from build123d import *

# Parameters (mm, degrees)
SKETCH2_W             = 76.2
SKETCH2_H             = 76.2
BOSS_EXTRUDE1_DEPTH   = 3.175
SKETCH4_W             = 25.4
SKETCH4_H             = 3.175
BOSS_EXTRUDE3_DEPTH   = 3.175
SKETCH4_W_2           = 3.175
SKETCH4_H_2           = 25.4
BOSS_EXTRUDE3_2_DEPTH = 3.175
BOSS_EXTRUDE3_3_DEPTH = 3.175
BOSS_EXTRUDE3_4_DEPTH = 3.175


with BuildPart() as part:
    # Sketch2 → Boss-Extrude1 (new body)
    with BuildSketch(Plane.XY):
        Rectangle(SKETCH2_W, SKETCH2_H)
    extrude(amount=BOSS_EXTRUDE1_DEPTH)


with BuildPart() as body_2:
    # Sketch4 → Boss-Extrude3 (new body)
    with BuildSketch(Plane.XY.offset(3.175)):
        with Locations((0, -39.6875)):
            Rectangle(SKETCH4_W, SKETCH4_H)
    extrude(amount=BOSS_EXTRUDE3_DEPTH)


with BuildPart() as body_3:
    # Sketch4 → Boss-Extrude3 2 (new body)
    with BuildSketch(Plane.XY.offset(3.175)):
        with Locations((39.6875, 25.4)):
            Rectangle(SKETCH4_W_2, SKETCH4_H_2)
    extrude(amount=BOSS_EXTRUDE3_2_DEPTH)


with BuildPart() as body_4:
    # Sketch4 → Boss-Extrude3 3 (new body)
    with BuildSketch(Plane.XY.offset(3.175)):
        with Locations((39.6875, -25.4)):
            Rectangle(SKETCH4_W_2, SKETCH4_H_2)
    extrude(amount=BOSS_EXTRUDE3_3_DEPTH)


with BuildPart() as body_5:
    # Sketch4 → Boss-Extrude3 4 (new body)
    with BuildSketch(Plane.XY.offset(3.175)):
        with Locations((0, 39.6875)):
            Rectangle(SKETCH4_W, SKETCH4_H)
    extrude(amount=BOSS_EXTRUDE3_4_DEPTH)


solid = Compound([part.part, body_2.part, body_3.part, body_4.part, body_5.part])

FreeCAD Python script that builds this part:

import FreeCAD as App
import Part
import Sketcher

V = App.Vector
Q = App.Units.Quantity

doc = App.newDocument("Part")
body = doc.addObject("PartDesign::Body", "Body")

# Sketch on XY plane
sketch1 = body.newObject("Sketcher::SketchObject", "Sketch")
sketch1.AttachmentSupport = (doc.getObject("XY_Plane"), [""])
sketch1.MapMode = "FlatFace"
sketch1.addGeometry([
    Part.LineSegment(V(-38, 38, 0), V(-38, -38, 0)),
    Part.LineSegment(V(-38, -38, 0), V(38, -38, 0)),
    Part.LineSegment(V(38, -38, 0), V(38, 38, 0)),
    Part.LineSegment(V(38, 38, 0), V(-38, 38, 0)),
], False)
sketch1.addConstraint([
    Sketcher.Constraint("Coincident", 0, 2, 1, 1),
    Sketcher.Constraint("Coincident", 1, 2, 2, 1),
    Sketcher.Constraint("Coincident", 2, 2, 3, 1),
    Sketcher.Constraint("Coincident", 3, 2, 0, 1),
    Sketcher.Constraint("Vertical", 0),
    Sketcher.Constraint("Horizontal", 1),
    Sketcher.Constraint("Vertical", 2),
    Sketcher.Constraint("Horizontal", 3),
    Sketcher.Constraint("Symmetric", 0, 2, 2, 2, -1, 1),
    Sketcher.Constraint("Equal", 3, 0),
    Sketcher.Constraint("DistanceX", 1, 1, 1, 2, Q("3 in")),
])
pad1 = body.newObject("PartDesign::Pad", "Pad")
pad1.Profile = sketch1
pad1.Length = Q("0.125 in")
body2 = doc.addObject("PartDesign::Body", "Body001")

# Sketch on XY plane
sketch2 = body2.newObject("Sketcher::SketchObject", "Sketch001")
sketch2.AttachmentSupport = (doc.getObject("XY_Plane001"), [""])
sketch2.MapMode = "FlatFace"
sketch2.AttachmentOffset = App.Placement(V(0, 0, 0.125 * 25.4), App.Rotation())
sketch2.addGeometry([
    Part.LineSegment(V(-12.7, -38.1, 0), V(-12.7, -41.3, 0)),
    Part.LineSegment(V(-12.7, -41.3, 0), V(12.7, -41.3, 0)),
    Part.LineSegment(V(12.7, -41.3, 0), V(12.7, -38.1, 0)),
    Part.LineSegment(V(12.7, -38.1, 0), V(-12.7, -38.1, 0)),
], False)
sketch2.addConstraint([
    Sketcher.Constraint("Coincident", 0, 2, 1, 1),
    Sketcher.Constraint("Coincident", 1, 2, 2, 1),
    Sketcher.Constraint("Coincident", 2, 2, 3, 1),
    Sketcher.Constraint("Coincident", 3, 2, 0, 1),
    Sketcher.Constraint("Vertical", 0),
    Sketcher.Constraint("Horizontal", 1),
    Sketcher.Constraint("Vertical", 2),
    Sketcher.Constraint("Horizontal", 3),
    Sketcher.Constraint("DistanceX", 1, 1, 1, 2, Q("1 in")),
    Sketcher.Constraint("DistanceX", 0, 2, -1, 1, Q("0.5 in")),
    Sketcher.Constraint("DistanceY", 2, 2, -1, 1, Q("1.5 in")),
    Sketcher.Constraint("DistanceY", 0, 2, 0, 1, Q("0.125 in")),
])
pad2 = body2.newObject("PartDesign::Pad", "Pad001")
pad2.Profile = sketch2
pad2.Length = Q("0.125 in")
body3 = doc.addObject("PartDesign::Body", "Body002")

# Sketch on XY plane
sketch3 = body3.newObject("Sketcher::SketchObject", "Sketch002")
sketch3.AttachmentSupport = (doc.getObject("XY_Plane002"), [""])
sketch3.MapMode = "FlatFace"
sketch3.AttachmentOffset = App.Placement(V(0, 0, 0.125 * 25.4), App.Rotation())
sketch3.addGeometry([
    Part.LineSegment(V(38.1, 38.1, 0), V(38.1, 12.7, 0)),
    Part.LineSegment(V(38.1, 12.7, 0), V(41.3, 12.7, 0)),
    Part.LineSegment(V(41.3, 12.7, 0), V(41.3, 38.1, 0)),
    Part.LineSegment(V(41.3, 38.1, 0), V(38.1, 38.1, 0)),
], False)
sketch3.addConstraint([
    Sketcher.Constraint("Coincident", 0, 2, 1, 1),
    Sketcher.Constraint("Coincident", 1, 2, 2, 1),
    Sketcher.Constraint("Coincident", 2, 2, 3, 1),
    Sketcher.Constraint("Coincident", 3, 2, 0, 1),
    Sketcher.Constraint("Vertical", 0),
    Sketcher.Constraint("Horizontal", 1),
    Sketcher.Constraint("Vertical", 2),
    Sketcher.Constraint("Horizontal", 3),
    Sketcher.Constraint("DistanceY", 0, 2, 0, 1, Q("1 in")),
    Sketcher.Constraint("DistanceX", -1, 1, 0, 2, Q("1.5 in")),
    Sketcher.Constraint("DistanceY", -1, 1, 0, 2, Q("0.5 in")),
    Sketcher.Constraint("DistanceX", 1, 1, 1, 2, Q("0.125 in")),
])
pad3 = body3.newObject("PartDesign::Pad", "Pad002")
pad3.Profile = sketch3
pad3.Length = Q("0.125 in")
body4 = doc.addObject("PartDesign::Body", "Body003")

# Sketch on XY plane
sketch4 = body4.newObject("Sketcher::SketchObject", "Sketch003")
sketch4.AttachmentSupport = (doc.getObject("XY_Plane003"), [""])
sketch4.MapMode = "FlatFace"
sketch4.AttachmentOffset = App.Placement(V(0, 0, 0.125 * 25.4), App.Rotation())
sketch4.addGeometry([
    Part.LineSegment(V(38.1, -12.7, 0), V(38.1, -38.1, 0)),
    Part.LineSegment(V(38.1, -38.1, 0), V(41.3, -38.1, 0)),
    Part.LineSegment(V(41.3, -38.1, 0), V(41.3, -12.7, 0)),
    Part.LineSegment(V(41.3, -12.7, 0), V(38.1, -12.7, 0)),
], False)
sketch4.addConstraint([
    Sketcher.Constraint("Coincident", 0, 2, 1, 1),
    Sketcher.Constraint("Coincident", 1, 2, 2, 1),
    Sketcher.Constraint("Coincident", 2, 2, 3, 1),
    Sketcher.Constraint("Coincident", 3, 2, 0, 1),
    Sketcher.Constraint("Vertical", 0),
    Sketcher.Constraint("Horizontal", 1),
    Sketcher.Constraint("Vertical", 2),
    Sketcher.Constraint("Horizontal", 3),
    Sketcher.Constraint("DistanceY", 0, 2, 0, 1, Q("1 in")),
    Sketcher.Constraint("DistanceX", -1, 1, 0, 2, Q("1.5 in")),
    Sketcher.Constraint("DistanceY", 0, 2, -1, 1, Q("1.5 in")),
    Sketcher.Constraint("DistanceX", 1, 1, 1, 2, Q("0.125 in")),
])
pad4 = body4.newObject("PartDesign::Pad", "Pad003")
pad4.Profile = sketch4
pad4.Length = Q("0.125 in")
body5 = doc.addObject("PartDesign::Body", "Body004")

# Sketch on XY plane
sketch5 = body5.newObject("Sketcher::SketchObject", "Sketch004")
sketch5.AttachmentSupport = (doc.getObject("XY_Plane004"), [""])
sketch5.MapMode = "FlatFace"
sketch5.AttachmentOffset = App.Placement(V(0, 0, 0.125 * 25.4), App.Rotation())
sketch5.addGeometry([
    Part.LineSegment(V(-12.7, 41.3, 0), V(-12.7, 38.1, 0)),
    Part.LineSegment(V(-12.7, 38.1, 0), V(12.7, 38.1, 0)),
    Part.LineSegment(V(12.7, 38.1, 0), V(12.7, 41.3, 0)),
    Part.LineSegment(V(12.7, 41.3, 0), V(-12.7, 41.3, 0)),
], False)
sketch5.addConstraint([
    Sketcher.Constraint("Coincident", 0, 2, 1, 1),
    Sketcher.Constraint("Coincident", 1, 2, 2, 1),
    Sketcher.Constraint("Coincident", 2, 2, 3, 1),
    Sketcher.Constraint("Coincident", 3, 2, 0, 1),
    Sketcher.Constraint("Vertical", 0),
    Sketcher.Constraint("Horizontal", 1),
    Sketcher.Constraint("Vertical", 2),
    Sketcher.Constraint("Horizontal", 3),
    Sketcher.Constraint("DistanceX", 1, 1, 1, 2, Q("1 in")),
    Sketcher.Constraint("DistanceX", 0, 2, -1, 1, Q("0.5 in")),
    Sketcher.Constraint("DistanceY", -1, 1, 0, 2, Q("1.5 in")),
    Sketcher.Constraint("DistanceY", 0, 2, 0, 1, Q("0.125 in")),
])
pad5 = body5.newObject("PartDesign::Pad", "Pad004")
pad5.Profile = sketch5
pad5.Length = Q("0.125 in")

doc.recompute()
